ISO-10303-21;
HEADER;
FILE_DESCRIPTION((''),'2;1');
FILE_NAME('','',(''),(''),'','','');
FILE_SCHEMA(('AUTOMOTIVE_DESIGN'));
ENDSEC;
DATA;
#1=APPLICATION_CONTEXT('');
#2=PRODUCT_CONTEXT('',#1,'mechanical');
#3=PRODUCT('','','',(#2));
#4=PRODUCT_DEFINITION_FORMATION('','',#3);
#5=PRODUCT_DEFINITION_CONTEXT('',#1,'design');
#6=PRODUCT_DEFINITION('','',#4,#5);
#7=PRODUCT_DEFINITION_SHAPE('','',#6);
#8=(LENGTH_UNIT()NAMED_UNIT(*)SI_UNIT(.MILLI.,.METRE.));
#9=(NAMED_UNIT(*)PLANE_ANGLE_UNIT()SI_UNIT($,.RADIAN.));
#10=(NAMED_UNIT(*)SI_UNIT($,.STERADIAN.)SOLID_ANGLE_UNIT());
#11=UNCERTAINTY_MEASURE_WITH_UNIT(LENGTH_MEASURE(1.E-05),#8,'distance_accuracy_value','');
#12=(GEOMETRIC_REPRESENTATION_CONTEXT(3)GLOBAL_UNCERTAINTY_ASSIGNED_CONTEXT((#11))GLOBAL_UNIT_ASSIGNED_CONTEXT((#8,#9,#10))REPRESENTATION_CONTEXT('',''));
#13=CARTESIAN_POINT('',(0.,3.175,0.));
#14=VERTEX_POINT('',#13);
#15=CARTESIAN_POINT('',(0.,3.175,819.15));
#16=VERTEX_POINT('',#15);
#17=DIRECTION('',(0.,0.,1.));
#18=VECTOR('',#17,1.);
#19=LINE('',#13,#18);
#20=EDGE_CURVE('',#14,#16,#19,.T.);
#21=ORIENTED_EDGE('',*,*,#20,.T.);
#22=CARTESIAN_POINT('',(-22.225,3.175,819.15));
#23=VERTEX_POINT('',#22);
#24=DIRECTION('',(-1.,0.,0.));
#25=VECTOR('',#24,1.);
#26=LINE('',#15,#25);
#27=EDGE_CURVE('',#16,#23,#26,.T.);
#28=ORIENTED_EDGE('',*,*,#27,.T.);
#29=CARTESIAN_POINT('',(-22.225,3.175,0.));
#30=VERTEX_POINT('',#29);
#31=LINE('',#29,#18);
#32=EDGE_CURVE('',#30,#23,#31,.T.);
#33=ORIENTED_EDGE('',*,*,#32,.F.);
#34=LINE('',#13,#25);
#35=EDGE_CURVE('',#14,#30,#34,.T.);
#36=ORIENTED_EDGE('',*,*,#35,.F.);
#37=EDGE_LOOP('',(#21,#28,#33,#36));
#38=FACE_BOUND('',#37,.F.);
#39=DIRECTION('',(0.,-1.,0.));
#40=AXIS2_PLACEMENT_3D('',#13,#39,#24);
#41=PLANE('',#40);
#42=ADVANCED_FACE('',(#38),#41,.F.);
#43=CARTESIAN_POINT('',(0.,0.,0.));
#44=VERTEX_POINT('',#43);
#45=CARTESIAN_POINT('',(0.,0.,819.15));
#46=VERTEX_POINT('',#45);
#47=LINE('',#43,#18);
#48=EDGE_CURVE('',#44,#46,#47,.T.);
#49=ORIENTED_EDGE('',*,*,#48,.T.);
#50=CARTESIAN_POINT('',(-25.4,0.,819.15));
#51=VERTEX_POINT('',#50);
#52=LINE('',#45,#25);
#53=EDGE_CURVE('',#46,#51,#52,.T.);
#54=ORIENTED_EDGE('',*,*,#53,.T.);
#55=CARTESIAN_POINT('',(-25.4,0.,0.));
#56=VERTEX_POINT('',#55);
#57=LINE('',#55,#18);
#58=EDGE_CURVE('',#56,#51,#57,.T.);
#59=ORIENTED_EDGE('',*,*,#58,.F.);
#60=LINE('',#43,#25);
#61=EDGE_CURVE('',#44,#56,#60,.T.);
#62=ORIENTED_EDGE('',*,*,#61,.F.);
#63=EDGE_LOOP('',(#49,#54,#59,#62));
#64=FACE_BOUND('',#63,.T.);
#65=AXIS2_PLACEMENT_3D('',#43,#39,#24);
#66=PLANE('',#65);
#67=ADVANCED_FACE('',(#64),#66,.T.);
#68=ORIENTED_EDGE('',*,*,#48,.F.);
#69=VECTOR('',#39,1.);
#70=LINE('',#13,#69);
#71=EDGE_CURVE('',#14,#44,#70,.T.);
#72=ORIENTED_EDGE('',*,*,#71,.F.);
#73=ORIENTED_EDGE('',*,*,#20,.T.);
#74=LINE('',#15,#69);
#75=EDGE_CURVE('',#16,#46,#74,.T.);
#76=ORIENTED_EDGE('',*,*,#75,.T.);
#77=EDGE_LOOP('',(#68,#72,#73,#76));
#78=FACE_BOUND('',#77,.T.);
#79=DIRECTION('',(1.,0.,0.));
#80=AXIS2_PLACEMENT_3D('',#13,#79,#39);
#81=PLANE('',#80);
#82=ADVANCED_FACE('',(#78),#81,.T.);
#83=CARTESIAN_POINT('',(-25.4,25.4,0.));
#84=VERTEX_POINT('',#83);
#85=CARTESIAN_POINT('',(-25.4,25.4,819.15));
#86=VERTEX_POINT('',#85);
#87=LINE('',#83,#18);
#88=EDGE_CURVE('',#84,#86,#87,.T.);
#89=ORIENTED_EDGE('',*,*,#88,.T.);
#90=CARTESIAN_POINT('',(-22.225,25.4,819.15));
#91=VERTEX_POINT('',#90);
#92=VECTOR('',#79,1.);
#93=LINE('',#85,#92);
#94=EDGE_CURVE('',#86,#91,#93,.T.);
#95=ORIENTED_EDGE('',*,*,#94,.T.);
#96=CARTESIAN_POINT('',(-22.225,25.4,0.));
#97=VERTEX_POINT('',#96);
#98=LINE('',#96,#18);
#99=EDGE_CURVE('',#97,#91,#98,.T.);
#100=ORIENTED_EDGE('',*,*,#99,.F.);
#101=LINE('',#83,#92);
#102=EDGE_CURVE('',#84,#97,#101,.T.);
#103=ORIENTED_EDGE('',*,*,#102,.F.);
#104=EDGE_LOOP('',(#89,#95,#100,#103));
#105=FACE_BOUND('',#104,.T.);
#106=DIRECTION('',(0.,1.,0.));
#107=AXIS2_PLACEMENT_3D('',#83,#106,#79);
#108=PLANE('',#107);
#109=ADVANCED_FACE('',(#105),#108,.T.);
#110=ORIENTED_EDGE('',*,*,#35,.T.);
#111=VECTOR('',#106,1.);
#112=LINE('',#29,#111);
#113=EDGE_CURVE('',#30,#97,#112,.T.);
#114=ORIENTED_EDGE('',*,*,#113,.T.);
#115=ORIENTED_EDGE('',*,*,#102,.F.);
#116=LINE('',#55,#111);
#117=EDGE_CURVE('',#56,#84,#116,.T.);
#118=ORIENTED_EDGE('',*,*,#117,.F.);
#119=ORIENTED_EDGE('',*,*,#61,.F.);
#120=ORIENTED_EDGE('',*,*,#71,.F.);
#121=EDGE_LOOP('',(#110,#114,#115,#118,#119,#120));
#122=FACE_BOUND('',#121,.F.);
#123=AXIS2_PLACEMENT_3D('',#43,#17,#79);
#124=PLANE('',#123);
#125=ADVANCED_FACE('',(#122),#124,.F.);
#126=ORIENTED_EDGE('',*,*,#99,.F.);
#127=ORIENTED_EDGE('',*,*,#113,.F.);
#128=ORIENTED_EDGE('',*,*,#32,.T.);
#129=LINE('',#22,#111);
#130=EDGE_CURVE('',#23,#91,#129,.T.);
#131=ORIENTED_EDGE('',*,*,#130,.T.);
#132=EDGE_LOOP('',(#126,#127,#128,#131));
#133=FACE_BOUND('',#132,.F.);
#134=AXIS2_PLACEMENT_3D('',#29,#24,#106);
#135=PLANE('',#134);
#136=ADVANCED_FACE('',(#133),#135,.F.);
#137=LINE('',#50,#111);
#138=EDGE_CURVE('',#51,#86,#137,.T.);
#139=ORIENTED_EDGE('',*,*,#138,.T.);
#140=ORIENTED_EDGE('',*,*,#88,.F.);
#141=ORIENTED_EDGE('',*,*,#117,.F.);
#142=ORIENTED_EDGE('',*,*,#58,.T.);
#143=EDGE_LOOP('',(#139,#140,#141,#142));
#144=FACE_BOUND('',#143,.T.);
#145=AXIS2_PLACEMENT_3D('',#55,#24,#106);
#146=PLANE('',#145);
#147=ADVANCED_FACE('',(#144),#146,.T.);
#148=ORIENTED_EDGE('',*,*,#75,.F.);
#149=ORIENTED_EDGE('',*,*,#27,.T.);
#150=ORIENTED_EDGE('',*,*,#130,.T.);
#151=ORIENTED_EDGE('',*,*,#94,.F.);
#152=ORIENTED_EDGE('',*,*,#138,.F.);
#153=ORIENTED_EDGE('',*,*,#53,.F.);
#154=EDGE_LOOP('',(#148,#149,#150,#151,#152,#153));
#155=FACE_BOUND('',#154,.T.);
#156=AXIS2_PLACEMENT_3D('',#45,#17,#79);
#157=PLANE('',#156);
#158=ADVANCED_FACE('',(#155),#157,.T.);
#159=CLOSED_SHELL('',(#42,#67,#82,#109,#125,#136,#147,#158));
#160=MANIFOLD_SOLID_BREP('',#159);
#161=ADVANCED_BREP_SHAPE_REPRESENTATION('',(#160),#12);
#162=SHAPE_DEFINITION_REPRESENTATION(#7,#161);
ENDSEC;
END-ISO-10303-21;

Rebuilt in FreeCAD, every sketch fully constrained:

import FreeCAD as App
import Part
import Sketcher
from FreeCAD import Vector
Q = App.Units.Quantity

doc = App.newDocument("Part")
body = doc.addObject("PartDesign::Body", "Body")

# Sketch on XY plane
sketch1 = doc.addObject("Sketcher::SketchObject", "Sketch")
body.addObject(sketch1)
sketch1.AttachmentSupport = (doc.XY_Plane, [""])
sketch1.MapMode = "FlatFace"
sketch1.addGeometry([
    Part.LineSegment(Vector(-25.4, 0, 0), Vector(0, 0, 0)),  # 0
    Part.LineSegment(Vector(0, 0, 0), Vector(0, 3.2, 0)),  # 1
    Part.LineSegment(Vector(0, 3.2, 0), Vector(-22.2, 3.2, 0)),  # 2
    Part.LineSegment(Vector(-22.2, 3.2, 0), Vector(-22.2, 25.4, 0)),  # 3
    Part.LineSegment(Vector(-22.2, 25.4, 0), Vector(-25.4, 25.4, 0)),  # 4
    Part.LineSegment(Vector(-25.4, 25.4, 0), Vector(-25.4, 0, 0)),  # 5
], False)
sketch1.addConstraint([
    Sketcher.Constraint("Coincident", 0, 2, 1, 1),
    Sketcher.Constraint("Coincident", 1, 2, 2, 1),
    Sketcher.Constraint("Coincident", 2, 2, 3, 1),
    Sketcher.Constraint("Coincident", 3, 2, 4, 1),
    Sketcher.Constraint("Coincident", 4, 2, 5, 1),
    Sketcher.Constraint("Coincident", 5, 2, 0, 1),
    Sketcher.Constraint("Horizontal", 0),
    Sketcher.Constraint("Vertical", 1),
    Sketcher.Constraint("Horizontal", 2),
    Sketcher.Constraint("Vertical", 3),
    Sketcher.Constraint("Horizontal", 4),
    Sketcher.Constraint("Vertical", 5),
    Sketcher.Constraint("Coincident", 0, 2, -1, 1),
    Sketcher.Constraint("Equal", 4, 1),
    Sketcher.Constraint("Equal", 2, 3),
    Sketcher.Constraint("DistanceX", 0, 1, 0, 2, Q("1 in")),
    Sketcher.Constraint("DistanceX", 4, 2, 4, 1, Q("0.125 in")),
])
pad1 = doc.addObject("PartDesign::Pad", "Pad")
body.addObject(pad1)
pad1.Profile = sketch1
pad1.Length = Q("32.25 in")

doc.recompute()
